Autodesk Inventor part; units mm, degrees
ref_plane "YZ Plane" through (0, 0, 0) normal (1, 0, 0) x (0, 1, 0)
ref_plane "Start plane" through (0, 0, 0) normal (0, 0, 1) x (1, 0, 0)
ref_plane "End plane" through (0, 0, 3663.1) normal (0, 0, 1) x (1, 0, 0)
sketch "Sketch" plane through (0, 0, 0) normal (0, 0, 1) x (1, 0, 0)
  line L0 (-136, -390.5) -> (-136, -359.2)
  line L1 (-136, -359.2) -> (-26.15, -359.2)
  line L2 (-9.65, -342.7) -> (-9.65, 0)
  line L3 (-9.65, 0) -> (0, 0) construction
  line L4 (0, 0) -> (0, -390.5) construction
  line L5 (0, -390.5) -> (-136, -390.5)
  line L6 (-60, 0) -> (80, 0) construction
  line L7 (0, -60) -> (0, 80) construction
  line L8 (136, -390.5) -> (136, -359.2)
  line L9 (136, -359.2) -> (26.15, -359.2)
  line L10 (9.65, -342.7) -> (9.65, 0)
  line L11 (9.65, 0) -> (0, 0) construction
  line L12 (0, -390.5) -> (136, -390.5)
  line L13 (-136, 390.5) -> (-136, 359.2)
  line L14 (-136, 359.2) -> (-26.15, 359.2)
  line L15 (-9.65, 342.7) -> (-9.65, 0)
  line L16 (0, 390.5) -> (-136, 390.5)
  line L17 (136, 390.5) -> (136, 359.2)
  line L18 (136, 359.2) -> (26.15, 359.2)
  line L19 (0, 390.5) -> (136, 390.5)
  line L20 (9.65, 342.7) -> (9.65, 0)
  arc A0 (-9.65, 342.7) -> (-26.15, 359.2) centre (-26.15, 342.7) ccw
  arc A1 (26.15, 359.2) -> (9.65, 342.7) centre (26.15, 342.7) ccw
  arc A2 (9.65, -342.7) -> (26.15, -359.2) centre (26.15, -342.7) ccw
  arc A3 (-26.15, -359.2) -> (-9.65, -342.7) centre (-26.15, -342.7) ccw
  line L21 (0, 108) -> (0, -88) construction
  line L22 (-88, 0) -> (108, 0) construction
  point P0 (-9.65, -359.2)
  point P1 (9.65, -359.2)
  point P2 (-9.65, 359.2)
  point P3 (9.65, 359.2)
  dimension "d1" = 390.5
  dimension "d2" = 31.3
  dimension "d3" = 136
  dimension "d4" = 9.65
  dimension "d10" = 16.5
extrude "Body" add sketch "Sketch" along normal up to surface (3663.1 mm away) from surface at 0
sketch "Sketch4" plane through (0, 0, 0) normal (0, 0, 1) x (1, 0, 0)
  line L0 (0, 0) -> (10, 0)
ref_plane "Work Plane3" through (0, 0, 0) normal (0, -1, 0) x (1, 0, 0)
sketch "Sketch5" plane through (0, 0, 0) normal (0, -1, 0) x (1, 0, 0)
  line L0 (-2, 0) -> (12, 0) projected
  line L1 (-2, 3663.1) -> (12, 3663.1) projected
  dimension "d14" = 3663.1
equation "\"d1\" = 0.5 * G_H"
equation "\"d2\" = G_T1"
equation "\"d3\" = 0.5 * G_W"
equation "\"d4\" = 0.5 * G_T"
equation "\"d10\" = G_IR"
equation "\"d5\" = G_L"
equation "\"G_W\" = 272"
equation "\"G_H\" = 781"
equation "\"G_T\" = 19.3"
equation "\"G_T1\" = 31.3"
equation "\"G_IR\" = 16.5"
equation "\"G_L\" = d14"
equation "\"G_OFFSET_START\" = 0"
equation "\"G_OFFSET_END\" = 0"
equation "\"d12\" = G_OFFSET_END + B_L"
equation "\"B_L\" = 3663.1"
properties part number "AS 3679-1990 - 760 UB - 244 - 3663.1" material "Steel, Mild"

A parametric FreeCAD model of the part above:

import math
import FreeCAD as App
import Part
import Sketcher

doc = App.newDocument("Part")
body = doc.addObject("PartDesign::Body", "Body")

# Sketch on XY plane
sketch1 = body.newObject("Sketcher::SketchObject", "Sketch")
sketch1.AttachmentSupport = (doc.getObject("XY_Plane"), [""])
sketch1.MapMode = "FlatFace"
sketch1.addGeometry([
    Part.LineSegment(App.Vector(-136, -359, 0), App.Vector(-136, -390, 0)),  # 0
    Part.LineSegment(App.Vector(-136, -390, 0), App.Vector(136, -390, 0)),  # 1
    Part.LineSegment(App.Vector(136, -390, 0), App.Vector(136, -359, 0)),  # 2
    Part.LineSegment(App.Vector(136, -359, 0), App.Vector(26, -359, 0)),  # 3
    Part.ArcOfCircle(Part.Circle(App.Vector(26, -343, 0), App.Vector(0, 0, 1), 16), math.radians(180), math.radians(270)),  # 4
    Part.LineSegment(App.Vector(10, -343, 0), App.Vector(10, 343, 0)),  # 5
    Part.ArcOfCircle(Part.Circle(App.Vector(26, 343, 0), App.Vector(0, 0, 1), 16), math.radians(90), math.radians(180)),  # 6
    Part.LineSegment(App.Vector(26, 359, 0), App.Vector(136, 359, 0)),  # 7
    Part.LineSegment(App.Vector(136, 359, 0), App.Vector(136, 390, 0)),  # 8
    Part.LineSegment(App.Vector(136, 390, 0), App.Vector(-136, 390, 0)),  # 9
    Part.LineSegment(App.Vector(-136, 390, 0), App.Vector(-136, 359, 0)),  # 10
    Part.LineSegment(App.Vector(-136, 359, 0), App.Vector(-26, 359, 0)),  # 11
    Part.ArcOfCircle(Part.Circle(App.Vector(-26, 343, 0), App.Vector(0, 0, 1), 16), math.radians(0), math.radians(90)),  # 12
    Part.LineSegment(App.Vector(-10, 343, 0), App.Vector(-10, -343, 0)),  # 13
    Part.ArcOfCircle(Part.Circle(App.Vector(-26, -343, 0), App.Vector(0, 0, 1), 16), math.radians(-90), math.radians(0)),  # 14
    Part.LineSegment(App.Vector(-26, -359, 0), App.Vector(-136, -359, 0)),  # 15
], False)
sketch1.addConstraint([
    Sketcher.Constraint("Coincident", 0, 2, 1, 1),
    Sketcher.Constraint("Coincident", 1, 2, 2, 1),
    Sketcher.Constraint("Coincident", 2, 2, 3, 1),
    Sketcher.Constraint("Tangent", 3, 2, 4, 2),
    Sketcher.Constraint("Tangent", 4, 1, 5, 1),
    Sketcher.Constraint("Tangent", 5, 2, 6, 2),
    Sketcher.Constraint("Tangent", 6, 1, 7, 1),
    Sketcher.Constraint("Coincident", 7, 2, 8, 1),
    Sketcher.Constraint("Coincident", 8, 2, 9, 1),
    Sketcher.Constraint("Coincident", 9, 2, 10, 1),
    Sketcher.Constraint("Coincident", 10, 2, 11, 1),
    Sketcher.Constraint("Tangent", 11, 2, 12, 2),
    Sketcher.Constraint("Tangent", 12, 1, 13, 1),
    Sketcher.Constraint("Tangent", 13, 2, 14, 2),
    Sketcher.Constraint("Tangent", 14, 1, 15, 1),
    Sketcher.Constraint("Coincident", 15, 2, 0, 1),
    Sketcher.Constraint("Vertical", 0),
    Sketcher.Constraint("Horizontal", 1),
    Sketcher.Constraint("Vertical", 2),
    Sketcher.Constraint("Horizontal", 3),
    Sketcher.Constraint("Vertical", 5),
    Sketcher.Constraint("Horizontal", 7),
    Sketcher.Constraint("Vertical", 8),
    Sketcher.Constraint("Horizontal", 9),
    Sketcher.Constraint("Vertical", 10),
    Sketcher.Constraint("Horizontal", 11),
    Sketcher.Constraint("Vertical", 13),
    Sketcher.Constraint("Horizontal", 15),
    Sketcher.Constraint("Equal", 4, 6),
    Sketcher.Constraint("Equal", 6, 12),
    Sketcher.Constraint("Equal", 12, 14),
    Sketcher.Constraint("Symmetric", 4, 3, 12, 3, -1, 1),
    Sketcher.Constraint("Symmetric", 0, 2, 8, 2, -1, 1),
    Sketcher.Constraint("Symmetric", 7, 2, 10, 2, -2),
    Sketcher.Constraint("Symmetric", 2, 2, 15, 2, -2),
    Sketcher.Constraint("Radius", 4, 16.5),
    Sketcher.Constraint("DistanceY", 0, 2, 0, 1, 31.3),
    Sketcher.Constraint("DistanceX", 0, 2, -1, 1, 136.0),
    Sketcher.Constraint("DistanceY", 0, 2, -1, 1, 390.5),
    Sketcher.Constraint("DistanceX", -1, 1, 4, 1, 9.65),
])
pad1 = body.newObject("PartDesign::Pad", "Pad")
pad1.Profile = sketch1
pad1.Length = 3663.1

doc.recompute()
